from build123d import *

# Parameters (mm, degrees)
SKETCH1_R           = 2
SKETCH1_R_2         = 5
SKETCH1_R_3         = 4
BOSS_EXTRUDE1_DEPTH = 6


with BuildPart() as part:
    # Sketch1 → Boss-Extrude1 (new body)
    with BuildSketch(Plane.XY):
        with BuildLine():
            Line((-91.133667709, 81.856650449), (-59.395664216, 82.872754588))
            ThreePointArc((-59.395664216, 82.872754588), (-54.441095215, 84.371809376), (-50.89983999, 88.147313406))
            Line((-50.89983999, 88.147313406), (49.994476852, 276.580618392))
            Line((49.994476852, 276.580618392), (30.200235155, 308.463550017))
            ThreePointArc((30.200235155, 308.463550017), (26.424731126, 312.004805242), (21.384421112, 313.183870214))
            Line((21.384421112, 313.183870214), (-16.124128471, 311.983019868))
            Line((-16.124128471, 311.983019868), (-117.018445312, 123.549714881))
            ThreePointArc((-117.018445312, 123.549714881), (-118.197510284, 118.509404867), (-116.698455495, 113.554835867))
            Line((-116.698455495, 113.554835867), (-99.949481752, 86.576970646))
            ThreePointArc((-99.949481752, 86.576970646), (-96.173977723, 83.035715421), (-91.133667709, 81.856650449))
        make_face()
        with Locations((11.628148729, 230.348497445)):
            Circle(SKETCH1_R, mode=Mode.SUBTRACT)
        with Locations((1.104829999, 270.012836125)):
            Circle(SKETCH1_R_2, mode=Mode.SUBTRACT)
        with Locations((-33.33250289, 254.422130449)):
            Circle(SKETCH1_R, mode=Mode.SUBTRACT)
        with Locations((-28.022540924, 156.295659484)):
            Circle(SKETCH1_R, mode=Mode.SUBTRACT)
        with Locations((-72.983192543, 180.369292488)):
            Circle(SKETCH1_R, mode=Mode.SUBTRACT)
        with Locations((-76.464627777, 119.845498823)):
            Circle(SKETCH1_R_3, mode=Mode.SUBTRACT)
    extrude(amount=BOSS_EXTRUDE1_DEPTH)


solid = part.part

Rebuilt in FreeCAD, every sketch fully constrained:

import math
import FreeCAD as App
import Part
import Sketcher
from FreeCAD import Vector
Q = App.Units.Quantity

doc = App.newDocument("Part")
params = doc.addObject("Spreadsheet::Sheet", "Params")
for row, (alias, value) in enumerate([
    ("sketch1_diameter", "8 mm"),
    ("sketch1_diameter2", "4 mm"),
    ("sketch1_diameter3", "10 mm"),
    ("sketch1_radius", "10 mm"),
    ("pad1_length", "6 mm"),
], start=1):
    params.set(f"A{row}", alias)
    params.set(f"B{row}", "=" + value)
    params.setAlias(f"B{row}", alias)

body = doc.addObject("PartDesign::Body", "Body")

# Sketch on XY plane
sketch1 = body.newObject("Sketcher::SketchObject", "Sketch")
sketch1.AttachmentSupport = (doc.getObject("XY_Plane"), [""])
sketch1.MapMode = "FlatFace"
sketch1.addGeometry([
    Part.LineSegment(Vector(-91.133668, 81.85665, 0), Vector(-59.395664, 82.872755, 0)),  # 0
    Part.ArcOfCircle(Part.Circle(Vector(-59.715654, 92.867634, 0), Vector(0, 0, 1), 10), math.radians(-88.16628), math.radians(-28.16628)),  # 1
    Part.LineSegment(Vector(-50.89984, 88.147313, 0), Vector(49.994477, 276.580618, 0)),  # 2
    Part.LineSegment(Vector(49.994477, 276.580618, 0), Vector(30.200235, 308.46355, 0)),  # 3
    Part.ArcOfCircle(Part.Circle(Vector(21.704411, 303.188991, 0), Vector(0, 0, 1), 10), math.radians(31.83372), math.radians(91.83372)),  # 4
    Part.LineSegment(Vector(21.384421, 313.18387, 0), Vector(-16.124128, 311.98302, 0)),  # 5
    Part.LineSegment(Vector(-16.124128, 311.98302, 0), Vector(-117.018445, 123.549715, 0)),  # 6
    Part.ArcOfCircle(Part.Circle(Vector(-108.202631, 118.829395, 0), Vector(0, 0, 1), 10), math.radians(151.83372), math.radians(211.83372)),  # 7
    Part.LineSegment(Vector(-116.698455, 113.554836, 0), Vector(-99.949482, 86.576971, 0)),  # 8
    Part.ArcOfCircle(Part.Circle(Vector(-91.453658, 91.851529, 0), Vector(0, 0, 1), 10), math.radians(-148.16628), math.radians(-88.16628)),  # 9
    Part.Circle(Vector(-76.464628, 119.845499, 0), Vector(0, 0, 1), 4),  # 10
    Part.Circle(Vector(-72.983193, 180.369292, 0), Vector(0, 0, 1), 2),  # 11
    Part.Circle(Vector(-28.022541, 156.295659, 0), Vector(0, 0, 1), 2),  # 12
    Part.Circle(Vector(11.628149, 230.348497, 0), Vector(0, 0, 1), 2),  # 13
    Part.Circle(Vector(-33.332503, 254.42213, 0), Vector(0, 0, 1), 2),  # 14
    Part.Circle(Vector(1.10483, 270.012836, 0), Vector(0, 0, 1), 5),  # 15
], False)
sketch1.addConstraint([
    Sketcher.Constraint("Tangent", 0, 2, 1, 1),
    Sketcher.Constraint("Tangent", 1, 2, 2, 1),
    Sketcher.Constraint("Coincident", 2, 2, 3, 1),
    Sketcher.Constraint("Tangent", 3, 2, 4, 1),
    Sketcher.Constraint("Tangent", 4, 2, 5, 1),
    Sketcher.Constraint("Coincident", 5, 2, 6, 1),
    Sketcher.Constraint("Tangent", 6, 2, 7, 1),
    Sketcher.Constraint("Tangent", 7, 2, 8, 1),
    Sketcher.Constraint("Tangent", 8, 2, 9, 1),
    Sketcher.Constraint("Tangent", 9, 2, 0, 1),
    Sketcher.Constraint("Equal", 1, 4),
    Sketcher.Constraint("Equal", 4, 7),
    Sketcher.Constraint("Equal", 7, 9),
    Sketcher.Constraint("Equal", 11, 12),
    Sketcher.Constraint("Equal", 12, 13),
    Sketcher.Constraint("Equal", 13, 14),
    Sketcher.Constraint("Parallel", 0, 5),
    Sketcher.Constraint("Parallel", 2, 6),
    Sketcher.Constraint("Parallel", 3, 8),
    Sketcher.Constraint("Equal", 3, 5),
    Sketcher.Constraint("Equal", 2, 6),
    Sketcher.Constraint("Equal", 0, 8),
    Sketcher.Constraint("Diameter", 10, Q("8 mm")),
    Sketcher.Constraint("Diameter", 11, Q("4 mm")),
    Sketcher.Constraint("Diameter", 15, Q("10 mm")),
    Sketcher.Constraint("Radius", 1, Q("10 mm")),
    Sketcher.Constraint("DistanceY", 10, 3, 13, 3, Q("110.502999 mm")),
    Sketcher.Constraint("DistanceY", -1, 1, 10, 3, Q("119.845499 mm")),
    Sketcher.Constraint("DistanceY", 11, 3, 4, 3, Q("122.819699 mm")),
    Sketcher.Constraint("DistanceX", 7, 2, 1, 3, Q("56.982801 mm")),
    Sketcher.Constraint("DistanceX", -1, 1, 4, 3, Q("21.704411 mm")),
    Sketcher.Constraint("DistanceY", -1, 1, 4, 3, Q("303.188991 mm")),
    Sketcher.Constraint("DistanceX", 7, 3, -1, 1, Q("108.202631 mm")),
    Sketcher.Constraint("DistanceY", -1, 1, 9, 3, Q("91.851529 mm")),
    Sketcher.Constraint("DistanceX", 12, 3, -1, 1, Q("28.022541 mm")),
    Sketcher.Constraint("DistanceY", -1, 1, 12, 3, Q("156.295659 mm")),
    Sketcher.Constraint("DistanceX", -1, 1, 13, 3, Q("11.628149 mm")),
    Sketcher.Constraint("DistanceY", -1, 1, 14, 3, Q("254.42213 mm")),
    Sketcher.Constraint("DistanceX", -1, 1, 15, 3, Q("1.10483 mm")),
    Sketcher.Constraint("DistanceX", 1, 2, -1, 1, Q("50.89984 mm")),
    Sketcher.Constraint("DistanceX", 9, 3, 10, 3, Q("14.98903 mm")),
    Sketcher.Constraint("DistanceX", 7, 3, 11, 3, Q("35.219439 mm")),
    Sketcher.Constraint("DistanceX", 14, 3, 13, 3, Q("44.960652 mm")),
    Sketcher.Constraint("DistanceY", 13, 3, 15, 3, Q("39.664339 mm")),
])
sketch1.setExpression("Constraints[22]", "Params.sketch1_diameter")
sketch1.setExpression("Constraints[23]", "Params.sketch1_diameter2")
sketch1.setExpression("Constraints[24]", "Params.sketch1_diameter3")
sketch1.setExpression("Constraints[25]", "Params.sketch1_radius")
pad1 = body.newObject("PartDesign::Pad", "Pad")
pad1.Profile = sketch1
pad1.setExpression("Length", "Params.pad1_length")

doc.recompute()
